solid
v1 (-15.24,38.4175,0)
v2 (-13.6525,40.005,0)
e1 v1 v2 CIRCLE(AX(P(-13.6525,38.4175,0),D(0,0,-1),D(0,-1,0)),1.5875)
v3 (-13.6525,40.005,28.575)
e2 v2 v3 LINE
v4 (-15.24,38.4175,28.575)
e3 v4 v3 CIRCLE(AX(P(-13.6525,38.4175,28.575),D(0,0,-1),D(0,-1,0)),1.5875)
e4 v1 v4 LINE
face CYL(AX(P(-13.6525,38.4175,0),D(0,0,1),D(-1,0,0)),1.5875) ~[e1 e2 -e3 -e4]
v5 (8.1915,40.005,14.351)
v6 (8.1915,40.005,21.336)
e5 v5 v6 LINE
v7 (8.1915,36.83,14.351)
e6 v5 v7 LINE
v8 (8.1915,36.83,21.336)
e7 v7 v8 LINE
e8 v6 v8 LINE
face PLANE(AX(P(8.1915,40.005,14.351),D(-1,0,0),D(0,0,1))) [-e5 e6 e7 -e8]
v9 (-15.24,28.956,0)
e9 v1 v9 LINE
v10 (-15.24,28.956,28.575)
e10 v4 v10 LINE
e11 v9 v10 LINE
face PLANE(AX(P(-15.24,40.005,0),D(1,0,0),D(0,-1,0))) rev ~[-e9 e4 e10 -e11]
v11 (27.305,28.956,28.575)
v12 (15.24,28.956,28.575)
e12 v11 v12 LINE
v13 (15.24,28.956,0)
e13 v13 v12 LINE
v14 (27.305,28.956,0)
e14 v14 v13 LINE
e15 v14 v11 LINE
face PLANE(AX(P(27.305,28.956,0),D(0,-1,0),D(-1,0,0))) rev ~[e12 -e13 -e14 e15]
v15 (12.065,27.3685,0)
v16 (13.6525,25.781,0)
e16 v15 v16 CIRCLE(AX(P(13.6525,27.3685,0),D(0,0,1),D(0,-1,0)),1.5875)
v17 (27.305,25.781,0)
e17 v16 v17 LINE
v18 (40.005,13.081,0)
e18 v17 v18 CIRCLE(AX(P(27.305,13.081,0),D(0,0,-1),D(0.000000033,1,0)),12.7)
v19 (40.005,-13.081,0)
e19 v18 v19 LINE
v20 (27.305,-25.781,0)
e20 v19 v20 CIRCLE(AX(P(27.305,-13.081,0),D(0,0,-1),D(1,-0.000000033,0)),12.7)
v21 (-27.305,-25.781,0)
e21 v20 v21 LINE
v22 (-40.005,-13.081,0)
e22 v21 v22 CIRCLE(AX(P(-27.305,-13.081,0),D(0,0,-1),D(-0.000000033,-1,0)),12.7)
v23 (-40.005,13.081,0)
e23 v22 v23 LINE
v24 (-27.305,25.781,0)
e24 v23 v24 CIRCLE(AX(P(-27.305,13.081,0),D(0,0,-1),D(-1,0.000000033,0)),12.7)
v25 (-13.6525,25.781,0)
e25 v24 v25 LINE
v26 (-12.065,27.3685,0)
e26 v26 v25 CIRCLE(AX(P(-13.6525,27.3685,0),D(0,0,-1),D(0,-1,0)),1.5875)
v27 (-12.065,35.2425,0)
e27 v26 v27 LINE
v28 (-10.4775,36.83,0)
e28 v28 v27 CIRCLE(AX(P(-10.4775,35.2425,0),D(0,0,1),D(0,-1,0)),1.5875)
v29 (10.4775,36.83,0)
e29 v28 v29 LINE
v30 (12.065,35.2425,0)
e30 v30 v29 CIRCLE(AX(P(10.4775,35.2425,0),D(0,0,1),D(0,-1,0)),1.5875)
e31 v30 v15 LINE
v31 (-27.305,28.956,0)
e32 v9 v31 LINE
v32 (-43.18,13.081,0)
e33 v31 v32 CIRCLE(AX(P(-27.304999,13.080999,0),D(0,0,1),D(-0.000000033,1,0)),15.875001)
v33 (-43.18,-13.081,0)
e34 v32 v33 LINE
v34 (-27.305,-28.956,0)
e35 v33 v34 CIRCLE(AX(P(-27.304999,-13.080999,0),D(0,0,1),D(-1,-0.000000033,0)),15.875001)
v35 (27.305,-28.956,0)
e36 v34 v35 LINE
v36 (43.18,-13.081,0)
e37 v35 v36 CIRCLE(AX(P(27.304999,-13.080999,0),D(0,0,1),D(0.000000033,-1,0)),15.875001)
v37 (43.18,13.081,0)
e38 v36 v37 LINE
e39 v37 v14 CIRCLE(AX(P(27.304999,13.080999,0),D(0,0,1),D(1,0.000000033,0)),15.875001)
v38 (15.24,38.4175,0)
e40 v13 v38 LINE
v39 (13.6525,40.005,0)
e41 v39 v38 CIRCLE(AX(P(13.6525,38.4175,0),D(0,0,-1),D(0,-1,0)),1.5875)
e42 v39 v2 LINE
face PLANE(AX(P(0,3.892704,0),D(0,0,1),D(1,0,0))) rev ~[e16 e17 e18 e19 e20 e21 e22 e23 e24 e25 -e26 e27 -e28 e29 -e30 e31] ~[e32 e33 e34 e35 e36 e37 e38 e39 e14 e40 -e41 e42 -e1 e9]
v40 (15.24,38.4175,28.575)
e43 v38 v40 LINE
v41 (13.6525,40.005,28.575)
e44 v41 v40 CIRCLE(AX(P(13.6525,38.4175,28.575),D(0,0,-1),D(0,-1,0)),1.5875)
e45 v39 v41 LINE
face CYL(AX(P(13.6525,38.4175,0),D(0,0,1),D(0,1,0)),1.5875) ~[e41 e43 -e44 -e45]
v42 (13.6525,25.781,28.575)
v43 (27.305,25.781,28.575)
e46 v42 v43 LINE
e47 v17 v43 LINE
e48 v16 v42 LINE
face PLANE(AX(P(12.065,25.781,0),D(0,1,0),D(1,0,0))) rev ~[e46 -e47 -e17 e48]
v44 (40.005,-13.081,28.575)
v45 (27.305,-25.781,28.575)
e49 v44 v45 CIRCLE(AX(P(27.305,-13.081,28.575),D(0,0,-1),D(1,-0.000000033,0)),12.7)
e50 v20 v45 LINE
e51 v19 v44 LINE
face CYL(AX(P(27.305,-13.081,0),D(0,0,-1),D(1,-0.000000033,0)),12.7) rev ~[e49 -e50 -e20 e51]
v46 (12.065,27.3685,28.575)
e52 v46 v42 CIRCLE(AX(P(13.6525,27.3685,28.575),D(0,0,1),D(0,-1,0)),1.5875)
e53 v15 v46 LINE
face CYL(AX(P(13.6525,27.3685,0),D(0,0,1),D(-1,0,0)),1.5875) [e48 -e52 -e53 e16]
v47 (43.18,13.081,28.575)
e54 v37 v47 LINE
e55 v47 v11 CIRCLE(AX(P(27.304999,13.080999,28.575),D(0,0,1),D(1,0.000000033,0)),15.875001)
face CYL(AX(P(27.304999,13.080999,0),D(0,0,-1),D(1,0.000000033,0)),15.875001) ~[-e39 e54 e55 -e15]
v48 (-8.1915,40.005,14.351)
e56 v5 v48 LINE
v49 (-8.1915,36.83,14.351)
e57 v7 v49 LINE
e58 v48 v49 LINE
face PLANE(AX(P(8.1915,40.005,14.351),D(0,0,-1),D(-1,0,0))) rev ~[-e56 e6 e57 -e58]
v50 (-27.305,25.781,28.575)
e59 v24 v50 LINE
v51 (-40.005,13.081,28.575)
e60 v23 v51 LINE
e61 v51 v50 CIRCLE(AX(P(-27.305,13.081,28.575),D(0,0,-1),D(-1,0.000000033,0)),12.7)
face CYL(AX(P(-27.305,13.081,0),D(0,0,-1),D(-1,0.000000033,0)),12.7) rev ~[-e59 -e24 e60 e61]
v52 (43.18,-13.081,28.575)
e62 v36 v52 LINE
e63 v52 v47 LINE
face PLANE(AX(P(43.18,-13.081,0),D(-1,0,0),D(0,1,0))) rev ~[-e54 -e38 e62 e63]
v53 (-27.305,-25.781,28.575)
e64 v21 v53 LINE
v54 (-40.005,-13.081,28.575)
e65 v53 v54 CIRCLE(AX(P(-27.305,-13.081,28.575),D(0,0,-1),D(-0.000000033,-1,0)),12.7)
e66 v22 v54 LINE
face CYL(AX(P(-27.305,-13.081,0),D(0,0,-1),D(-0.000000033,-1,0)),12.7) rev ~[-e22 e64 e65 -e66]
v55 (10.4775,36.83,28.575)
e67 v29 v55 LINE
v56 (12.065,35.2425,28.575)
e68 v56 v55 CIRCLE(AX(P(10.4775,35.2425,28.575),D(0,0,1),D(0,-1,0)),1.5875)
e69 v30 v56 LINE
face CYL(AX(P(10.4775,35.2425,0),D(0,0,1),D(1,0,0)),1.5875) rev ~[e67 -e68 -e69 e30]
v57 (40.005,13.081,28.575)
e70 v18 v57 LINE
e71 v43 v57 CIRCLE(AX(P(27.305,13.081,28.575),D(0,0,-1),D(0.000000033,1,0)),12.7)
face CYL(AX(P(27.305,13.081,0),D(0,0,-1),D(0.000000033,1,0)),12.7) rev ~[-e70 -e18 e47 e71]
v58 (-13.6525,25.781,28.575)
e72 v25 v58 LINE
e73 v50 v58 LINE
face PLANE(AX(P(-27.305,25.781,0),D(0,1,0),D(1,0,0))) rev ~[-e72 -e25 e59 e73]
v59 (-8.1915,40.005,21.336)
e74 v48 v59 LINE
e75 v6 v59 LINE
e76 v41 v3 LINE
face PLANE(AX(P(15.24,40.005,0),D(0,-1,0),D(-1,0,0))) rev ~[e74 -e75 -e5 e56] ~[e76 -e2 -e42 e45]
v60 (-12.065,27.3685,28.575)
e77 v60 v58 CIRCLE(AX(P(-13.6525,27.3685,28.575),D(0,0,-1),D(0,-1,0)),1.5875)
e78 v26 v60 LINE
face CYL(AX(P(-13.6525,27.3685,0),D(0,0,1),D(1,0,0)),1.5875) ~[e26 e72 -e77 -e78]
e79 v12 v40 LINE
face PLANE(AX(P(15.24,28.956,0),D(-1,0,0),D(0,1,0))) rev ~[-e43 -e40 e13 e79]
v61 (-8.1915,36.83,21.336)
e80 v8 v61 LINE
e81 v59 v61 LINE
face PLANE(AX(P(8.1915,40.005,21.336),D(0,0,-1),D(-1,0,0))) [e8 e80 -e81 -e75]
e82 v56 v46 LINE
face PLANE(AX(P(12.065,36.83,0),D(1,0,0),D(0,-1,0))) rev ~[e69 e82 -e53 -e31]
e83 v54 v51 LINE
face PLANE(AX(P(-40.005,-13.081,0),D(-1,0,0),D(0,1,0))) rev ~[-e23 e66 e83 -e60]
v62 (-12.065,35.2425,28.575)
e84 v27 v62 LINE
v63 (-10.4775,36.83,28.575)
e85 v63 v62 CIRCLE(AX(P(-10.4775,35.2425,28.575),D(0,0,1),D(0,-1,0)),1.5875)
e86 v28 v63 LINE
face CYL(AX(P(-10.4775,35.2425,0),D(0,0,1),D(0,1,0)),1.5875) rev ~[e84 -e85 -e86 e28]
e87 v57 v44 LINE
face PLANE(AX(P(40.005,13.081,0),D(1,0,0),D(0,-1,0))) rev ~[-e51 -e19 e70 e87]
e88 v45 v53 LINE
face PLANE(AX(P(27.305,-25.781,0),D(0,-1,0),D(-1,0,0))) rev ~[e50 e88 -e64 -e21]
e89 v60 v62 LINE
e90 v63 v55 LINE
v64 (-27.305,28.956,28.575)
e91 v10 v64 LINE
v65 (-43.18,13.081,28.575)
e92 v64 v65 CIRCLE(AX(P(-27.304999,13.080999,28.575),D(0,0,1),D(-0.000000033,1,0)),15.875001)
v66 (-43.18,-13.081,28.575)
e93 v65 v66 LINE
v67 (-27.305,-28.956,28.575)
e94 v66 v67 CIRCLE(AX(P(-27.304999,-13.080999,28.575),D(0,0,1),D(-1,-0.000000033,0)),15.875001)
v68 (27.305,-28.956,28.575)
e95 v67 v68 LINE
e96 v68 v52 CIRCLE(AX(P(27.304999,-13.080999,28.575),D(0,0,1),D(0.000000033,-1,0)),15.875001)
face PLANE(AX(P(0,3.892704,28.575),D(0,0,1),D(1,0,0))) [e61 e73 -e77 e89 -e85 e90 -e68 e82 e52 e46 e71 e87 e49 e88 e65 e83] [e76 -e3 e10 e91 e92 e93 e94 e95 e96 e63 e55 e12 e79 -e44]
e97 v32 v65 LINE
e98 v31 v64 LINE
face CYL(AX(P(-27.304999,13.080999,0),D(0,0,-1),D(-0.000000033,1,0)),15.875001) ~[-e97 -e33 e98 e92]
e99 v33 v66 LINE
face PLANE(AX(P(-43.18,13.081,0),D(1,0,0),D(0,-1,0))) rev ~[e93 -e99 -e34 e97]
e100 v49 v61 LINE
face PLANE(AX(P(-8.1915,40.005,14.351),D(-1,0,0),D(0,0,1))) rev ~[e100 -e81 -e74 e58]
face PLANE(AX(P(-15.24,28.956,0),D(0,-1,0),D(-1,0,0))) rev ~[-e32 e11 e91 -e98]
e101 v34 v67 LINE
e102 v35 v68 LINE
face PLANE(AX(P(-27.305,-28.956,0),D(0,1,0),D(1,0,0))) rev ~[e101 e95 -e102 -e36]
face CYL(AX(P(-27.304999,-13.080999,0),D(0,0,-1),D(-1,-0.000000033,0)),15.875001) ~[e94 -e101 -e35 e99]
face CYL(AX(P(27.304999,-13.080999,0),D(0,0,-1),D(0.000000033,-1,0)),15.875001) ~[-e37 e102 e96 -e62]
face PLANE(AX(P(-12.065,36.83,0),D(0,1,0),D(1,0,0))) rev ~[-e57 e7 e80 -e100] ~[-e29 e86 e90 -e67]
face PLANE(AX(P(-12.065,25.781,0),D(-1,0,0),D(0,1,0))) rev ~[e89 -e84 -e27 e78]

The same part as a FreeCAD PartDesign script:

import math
import FreeCAD as App
import Part
import Sketcher

V = App.Vector
Q = App.Units.Quantity


def edges_at(feature, points):
    """Names of the edges that pass closest to the given points."""
    edges = feature.Shape.Edges
    near = lambda p: min(range(len(edges)), key=lambda i: edges[i].distToShape(Part.Vertex(*p))[0])
    return sorted({f"Edge{near(p) + 1}" for p in points})

doc = App.newDocument("Part")
body = doc.addObject("PartDesign::Body", "Body")

sketch1 = body.newObject("Sketcher::SketchObject", "Sketch")
sketch1.AttachmentSupport = (doc.getObject("XY_Plane"), [""])
sketch1.MapMode = "FlatFace"
sketch1.addGeometry([
    Part.LineSegment(V(-15, 40, 0), V(-15, 29, 0)),
    Part.LineSegment(V(-15, 29, 0), V(-27, 29, 0)),
    Part.ArcOfCircle(Part.Circle(V(-27, 13, 0), V(0, 0, 1), 16), math.radians(90), math.radians(180)),
    Part.LineSegment(V(-43, 13, 0), V(-43, -13, 0)),
    Part.ArcOfCircle(Part.Circle(V(-27, -13, 0), V(0, 0, 1), 16), math.radians(-180), math.radians(-90)),
    Part.LineSegment(V(-27, -29, 0), V(27, -29, 0)),
    Part.ArcOfCircle(Part.Circle(V(27, -13, 0), V(0, 0, 1), 16), math.radians(-90), math.radians(0)),
    Part.LineSegment(V(43, -13, 0), V(43, 13, 0)),
    Part.ArcOfCircle(Part.Circle(V(27, 13, 0), V(0, 0, 1), 16), math.radians(0), math.radians(90)),
    Part.LineSegment(V(27, 29, 0), V(15, 29, 0)),
    Part.LineSegment(V(15, 29, 0), V(15, 40, 0)),
    Part.LineSegment(V(15, 40, 0), V(-15, 40, 0)),
    Part.LineSegment(V(12, 37, 0), V(12, 26, 0)),
    Part.LineSegment(V(12, 26, 0), V(27, 26, 0)),
    Part.ArcOfCircle(Part.Circle(V(27, 13, 0), V(0, 0, 1), 13), math.radians(0), math.radians(90)),
    Part.LineSegment(V(40, 13, 0), V(40, -13, 0)),
    Part.ArcOfCircle(Part.Circle(V(27, -13, 0), V(0, 0, 1), 13), math.radians(-90), math.radians(0)),
    Part.LineSegment(V(27, -26, 0), V(-27, -26, 0)),
    Part.ArcOfCircle(Part.Circle(V(-27, -13, 0), V(0, 0, 1), 13), math.radians(-180), math.radians(-90)),
    Part.LineSegment(V(-40, -13, 0), V(-40, 13, 0)),
    Part.ArcOfCircle(Part.Circle(V(-27, 13, 0), V(0, 0, 1), 13), math.radians(90), math.radians(180)),
    Part.LineSegment(V(-27, 26, 0), V(-12, 26, 0)),
    Part.LineSegment(V(-12, 26, 0), V(-12, 37, 0)),
    Part.LineSegment(V(-12, 37, 0), V(12, 37, 0)),
], False)
sketch1.addConstraint([
    Sketcher.Constraint("Coincident", 0, 2, 1, 1),
    Sketcher.Constraint("Tangent", 1, 2, 2, 1),
    Sketcher.Constraint("Tangent", 2, 2, 3, 1),
    Sketcher.Constraint("Tangent", 3, 2, 4, 1),
    Sketcher.Constraint("Tangent", 4, 2, 5, 1),
    Sketcher.Constraint("Tangent", 5, 2, 6, 1),
    Sketcher.Constraint("Tangent", 6, 2, 7, 1),
    Sketcher.Constraint("Tangent", 7, 2, 8, 1),
    Sketcher.Constraint("Tangent", 8, 2, 9, 1),
    Sketcher.Constraint("Coincident", 9, 2, 10, 1),
    Sketcher.Constraint("Coincident", 10, 2, 11, 1),
    Sketcher.Constraint("Coincident", 11, 2, 0, 1),
    Sketcher.Constraint("Coincident", 12, 2, 13, 1),
    Sketcher.Constraint("Tangent", 13, 2, 14, 2),
    Sketcher.Constraint("Tangent", 14, 1, 15, 1),
    Sketcher.Constraint("Tangent", 15, 2, 16, 2),
    Sketcher.Constraint("Tangent", 16, 1, 17, 1),
    Sketcher.Constraint("Tangent", 17, 2, 18, 2),
    Sketcher.Constraint("Tangent", 18, 1, 19, 1),
    Sketcher.Constraint("Tangent", 19, 2, 20, 2),
    Sketcher.Constraint("Tangent", 20, 1, 21, 1),
    Sketcher.Constraint("Coincident", 21, 2, 22, 1),
    Sketcher.Constraint("Coincident", 22, 2, 23, 1),
    Sketcher.Constraint("Coincident", 23, 2, 12, 1),
    Sketcher.Constraint("Vertical", 0),
    Sketcher.Constraint("Horizontal", 1),
    Sketcher.Constraint("Vertical", 3),
    Sketcher.Constraint("Horizontal", 5),
    Sketcher.Constraint("Vertical", 7),
    Sketcher.Constraint("Horizontal", 9),
    Sketcher.Constraint("Vertical", 10),
    Sketcher.Constraint("Horizontal", 11),
    Sketcher.Constraint("Vertical", 12),
    Sketcher.Constraint("Horizontal", 13),
    Sketcher.Constraint("Vertical", 15),
    Sketcher.Constraint("Horizontal", 17),
    Sketcher.Constraint("Vertical", 19),
    Sketcher.Constraint("Horizontal", 21),
    Sketcher.Constraint("Vertical", 22),
    Sketcher.Constraint("Horizontal", 23),
    Sketcher.Constraint("Coincident", 14, 3, 8, 3),
    Sketcher.Constraint("Coincident", 16, 3, 6, 3),
    Sketcher.Constraint("Coincident", 18, 3, 4, 3),
    Sketcher.Constraint("Coincident", 20, 3, 2, 3),
    Sketcher.Constraint("Equal", 2, 4),
    Sketcher.Constraint("Equal", 4, 6),
    Sketcher.Constraint("Equal", 6, 8),
    Sketcher.Constraint("Symmetric", 2, 3, 6, 3, -1, 1),
    Sketcher.Constraint("Symmetric", 0, 2, 9, 2, -2),
    Sketcher.Constraint("Equal", 13, 21),
    Sketcher.Constraint("Equal", 10, 12),
    Sketcher.Constraint("Radius", 14, Q("0.5 in")),
    Sketcher.Constraint("DistanceX", 11, 2, 11, 1, Q("1.2 in")),
    Sketcher.Constraint("DistanceX", 13, 1, 13, 2, Q("0.6 in")),
    Sketcher.Constraint("Radius", 2, Q("0.625 in")),
    Sketcher.Constraint("DistanceX", 5, 1, 5, 2, Q("2.15 in")),
    Sketcher.Constraint("DistanceY", 3, 2, 3, 1, Q("1.03 in")),
    Sketcher.Constraint("DistanceY", 0, 2, 0, 1, Q("0.435 in")),
])
pad1 = body.newObject("PartDesign::Pad", "Pad")
pad1.Profile = sketch1
pad1.Length = Q("1.125 in")

sketch2 = body.newObject("Sketcher::SketchObject", "Sketch001")
sketch2.AttachmentSupport = (doc.getObject("XZ_Plane"), [""])
sketch2.MapMode = "FlatFace"
sketch2.AttachmentOffset = App.Placement(V(0, 0, -1.575 * 25.4), App.Rotation())
sketch2.addGeometry([
    Part.LineSegment(V(8, 21, 0), V(8, 14, 0)),
    Part.LineSegment(V(8, 14, 0), V(-8, 14, 0)),
    Part.LineSegment(V(-8, 14, 0), V(-8, 21, 0)),
    Part.LineSegment(V(-8, 21, 0), V(8, 21, 0)),
], False)
sketch2.addConstraint([
    Sketcher.Constraint("Coincident", 0, 2, 1, 1),
    Sketcher.Constraint("Coincident", 1, 2, 2, 1),
    Sketcher.Constraint("Coincident", 2, 2, 3, 1),
    Sketcher.Constraint("Coincident", 3, 2, 0, 1),
    Sketcher.Constraint("Vertical", 0),
    Sketcher.Constraint("Horizontal", 1),
    Sketcher.Constraint("Vertical", 2),
    Sketcher.Constraint("Horizontal", 3),
    Sketcher.Constraint("DistanceX", 1, 2, 1, 1, Q("0.645 in")),
    Sketcher.Constraint("DistanceY", 0, 2, 0, 1, Q("0.275 in")),
    Sketcher.Constraint("DistanceY", -1, 1, 2, 2, Q("0.84 in")),
    Sketcher.Constraint("DistanceX", -1, 1, 0, 2, Q("0.3225 in")),
])
pocket1 = body.newObject("PartDesign::Pocket", "Pocket")
pocket1.Profile = sketch2
pocket1.Length = Q("0.125 in")
pocket1.Reversed = True
doc.recompute()

fillet = body.newObject("PartDesign::Fillet", "Fillet")
fillet.Base = (pocket1, edges_at(pocket1, [
    (-12.065, 25.781, 14.287),
    (-12.065, 36.83, 14.287),
    (12.065, 25.781, 14.287),
    (12.065, 36.83, 14.287),
    (15.24, 40.005, 14.287),
    (-15.24, 40.005, 14.287),
]))
fillet.Radius = Q("0.0625 in")
body2 = doc.addObject("PartDesign::Body", "Body001")
doc.recompute()

body2.BaseFeature = body
doc.recompute()
body.Visibility = False

doc.recompute()
